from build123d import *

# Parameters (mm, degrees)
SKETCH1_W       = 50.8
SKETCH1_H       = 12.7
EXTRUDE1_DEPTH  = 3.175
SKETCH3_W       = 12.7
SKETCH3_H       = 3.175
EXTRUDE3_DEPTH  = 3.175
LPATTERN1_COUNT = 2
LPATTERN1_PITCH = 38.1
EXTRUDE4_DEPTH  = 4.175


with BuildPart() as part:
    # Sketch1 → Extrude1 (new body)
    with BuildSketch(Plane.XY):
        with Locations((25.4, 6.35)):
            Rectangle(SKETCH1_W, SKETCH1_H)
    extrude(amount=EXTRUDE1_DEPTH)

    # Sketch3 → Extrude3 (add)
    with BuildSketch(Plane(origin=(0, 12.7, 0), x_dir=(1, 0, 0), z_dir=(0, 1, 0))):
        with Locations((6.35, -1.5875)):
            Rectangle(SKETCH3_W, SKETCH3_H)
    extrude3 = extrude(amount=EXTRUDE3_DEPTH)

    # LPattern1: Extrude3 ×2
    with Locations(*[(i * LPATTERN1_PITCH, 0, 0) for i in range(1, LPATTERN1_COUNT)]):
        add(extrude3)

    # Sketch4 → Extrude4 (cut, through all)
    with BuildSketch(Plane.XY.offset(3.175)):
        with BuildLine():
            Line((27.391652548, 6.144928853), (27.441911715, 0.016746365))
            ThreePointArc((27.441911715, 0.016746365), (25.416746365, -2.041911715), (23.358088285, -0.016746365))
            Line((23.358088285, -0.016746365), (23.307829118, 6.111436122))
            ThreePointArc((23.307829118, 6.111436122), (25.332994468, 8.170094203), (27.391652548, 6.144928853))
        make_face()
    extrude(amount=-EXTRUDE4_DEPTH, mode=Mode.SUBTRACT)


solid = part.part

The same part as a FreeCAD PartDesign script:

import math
import FreeCAD as App
import Part
import Sketcher

V = App.Vector
Q = App.Units.Quantity

doc = App.newDocument("Part")
body = doc.addObject("PartDesign::Body", "Body")

# Sketch on XY plane
sketch1 = doc.addObject("Sketcher::SketchObject", "Sketch")
body.addObject(sketch1)
sketch1.AttachmentSupport = (doc.XY_Plane, [""])
sketch1.MapMode = "FlatFace"
sketch1.addGeometry([
    Part.LineSegment(V(0, 13, 0), V(0, 0, 0)),
    Part.LineSegment(V(0, 0, 0), V(51, 0, 0)),
    Part.LineSegment(V(51, 0, 0), V(51, 13, 0)),
    Part.LineSegment(V(51, 13, 0), V(0, 13, 0)),
], False)
sketch1.addConstraint([
    Sketcher.Constraint("Coincident", 0, 2, 1, 1),
    Sketcher.Constraint("Coincident", 1, 2, 2, 1),
    Sketcher.Constraint("Coincident", 2, 2, 3, 1),
    Sketcher.Constraint("Coincident", 3, 2, 0, 1),
    Sketcher.Constraint("Vertical", 0),
    Sketcher.Constraint("Horizontal", 1),
    Sketcher.Constraint("Vertical", 2),
    Sketcher.Constraint("Horizontal", 3),
    Sketcher.Constraint("Coincident", 0, 2, -1, 1),
    Sketcher.Constraint("DistanceX", 1, 1, 1, 2, Q("2 in")),
    Sketcher.Constraint("DistanceY", 0, 2, 0, 1, Q("0.5 in")),
])
pad1 = doc.addObject("PartDesign::Pad", "Pad")
body.addObject(pad1)
pad1.Profile = sketch1
pad1.Length = Q("0.125 in")

# Sketch on XZ plane
sketch2 = doc.addObject("Sketcher::SketchObject", "Sketch001")
body.addObject(sketch2)
sketch2.AttachmentSupport = (doc.XZ_Plane, [""])
sketch2.MapMode = "FlatFace"
sketch2.AttachmentOffset = App.Placement(V(0, 0, -0.5 * 25.4), App.Rotation())
sketch2.addGeometry([
    Part.LineSegment(V(0, 0, 0), V(0, 3.2, 0)),
    Part.LineSegment(V(0, 3.2, 0), V(12.7, 3.2, 0)),
    Part.LineSegment(V(12.7, 3.2, 0), V(12.7, 0, 0)),
    Part.LineSegment(V(12.7, 0, 0), V(0, 0, 0)),
], False)
sketch2.addConstraint([
    Sketcher.Constraint("Coincident", 0, 2, 1, 1),
    Sketcher.Constraint("Coincident", 1, 2, 2, 1),
    Sketcher.Constraint("Coincident", 2, 2, 3, 1),
    Sketcher.Constraint("Coincident", 3, 2, 0, 1),
    Sketcher.Constraint("Vertical", 0),
    Sketcher.Constraint("Horizontal", 1),
    Sketcher.Constraint("Vertical", 2),
    Sketcher.Constraint("Horizontal", 3),
    Sketcher.Constraint("Coincident", 3, 2, -1, 1),
    Sketcher.Constraint("DistanceX", 1, 1, 1, 2, Q("0.5 in")),
    Sketcher.Constraint("DistanceY", 0, 1, 0, 2, Q("0.125 in")),
])
pad2 = doc.addObject("PartDesign::Pad", "Pad001")
body.addObject(pad2)
pad2.Profile = sketch2
pad2.Length = Q("0.125 in")
pad2.Reversed = True
doc.recompute()

linearpattern = doc.addObject("PartDesign::LinearPattern", "LinearPattern")
body.addObject(linearpattern)
linearpattern.Originals = [pad2]
linearpattern.Direction = (doc.X_Axis, [""])
linearpattern.Mode = "offset"
linearpattern.Offset = Q("1.5 in")
linearpattern.Occurrences = 2
body.Tip = linearpattern

# Sketch on XY plane
sketch3 = doc.addObject("Sketcher::SketchObject", "Sketch002")
body.addObject(sketch3)
sketch3.AttachmentSupport = (doc.XY_Plane, [""])
sketch3.MapMode = "FlatFace"
sketch3.AttachmentOffset = App.Placement(V(0, 0, 0.125 * 25.4), App.Rotation())
sketch3.addGeometry([
    Part.LineSegment(V(27.4, 0, 0), V(27.4, 6.1, 0)),
    Part.ArcOfCircle(Part.Circle(V(25.3, 6.1, 0), V(0, 0, 1), 2), math.radians(0), math.radians(180)),
    Part.LineSegment(V(23.3, 6.1, 0), V(23.4, 0, 0)),
    Part.ArcOfCircle(Part.Circle(V(25.4, 0, 0), V(0, 0, 1), 2), math.radians(-180), math.radians(0)),
], False)
sketch3.addConstraint([
    Sketcher.Constraint("Tangent", 0, 2, 1, 1),
    Sketcher.Constraint("Tangent", 1, 2, 2, 1),
    Sketcher.Constraint("Tangent", 2, 2, 3, 1),
    Sketcher.Constraint("Tangent", 3, 2, 0, 1),
    Sketcher.Constraint("Equal", 1, 3),
    Sketcher.Constraint("PointOnObject", 3, 3, -1),
    Sketcher.Constraint("DistanceX", -1, 1, 3, 3, Q("1 in")),
    Sketcher.Constraint("Radius", 1, 2.04198),
    Sketcher.Constraint("Distance", 0, 6.128389),
    Sketcher.Constraint("DistanceX", -1, 1, 1, 3, 25.349741),
])
pocket1 = doc.addObject("PartDesign::Pocket", "Pocket")
body.addObject(pocket1)
pocket1.Profile = sketch3
pocket1.Type = "ThroughAll"

doc.recompute()
